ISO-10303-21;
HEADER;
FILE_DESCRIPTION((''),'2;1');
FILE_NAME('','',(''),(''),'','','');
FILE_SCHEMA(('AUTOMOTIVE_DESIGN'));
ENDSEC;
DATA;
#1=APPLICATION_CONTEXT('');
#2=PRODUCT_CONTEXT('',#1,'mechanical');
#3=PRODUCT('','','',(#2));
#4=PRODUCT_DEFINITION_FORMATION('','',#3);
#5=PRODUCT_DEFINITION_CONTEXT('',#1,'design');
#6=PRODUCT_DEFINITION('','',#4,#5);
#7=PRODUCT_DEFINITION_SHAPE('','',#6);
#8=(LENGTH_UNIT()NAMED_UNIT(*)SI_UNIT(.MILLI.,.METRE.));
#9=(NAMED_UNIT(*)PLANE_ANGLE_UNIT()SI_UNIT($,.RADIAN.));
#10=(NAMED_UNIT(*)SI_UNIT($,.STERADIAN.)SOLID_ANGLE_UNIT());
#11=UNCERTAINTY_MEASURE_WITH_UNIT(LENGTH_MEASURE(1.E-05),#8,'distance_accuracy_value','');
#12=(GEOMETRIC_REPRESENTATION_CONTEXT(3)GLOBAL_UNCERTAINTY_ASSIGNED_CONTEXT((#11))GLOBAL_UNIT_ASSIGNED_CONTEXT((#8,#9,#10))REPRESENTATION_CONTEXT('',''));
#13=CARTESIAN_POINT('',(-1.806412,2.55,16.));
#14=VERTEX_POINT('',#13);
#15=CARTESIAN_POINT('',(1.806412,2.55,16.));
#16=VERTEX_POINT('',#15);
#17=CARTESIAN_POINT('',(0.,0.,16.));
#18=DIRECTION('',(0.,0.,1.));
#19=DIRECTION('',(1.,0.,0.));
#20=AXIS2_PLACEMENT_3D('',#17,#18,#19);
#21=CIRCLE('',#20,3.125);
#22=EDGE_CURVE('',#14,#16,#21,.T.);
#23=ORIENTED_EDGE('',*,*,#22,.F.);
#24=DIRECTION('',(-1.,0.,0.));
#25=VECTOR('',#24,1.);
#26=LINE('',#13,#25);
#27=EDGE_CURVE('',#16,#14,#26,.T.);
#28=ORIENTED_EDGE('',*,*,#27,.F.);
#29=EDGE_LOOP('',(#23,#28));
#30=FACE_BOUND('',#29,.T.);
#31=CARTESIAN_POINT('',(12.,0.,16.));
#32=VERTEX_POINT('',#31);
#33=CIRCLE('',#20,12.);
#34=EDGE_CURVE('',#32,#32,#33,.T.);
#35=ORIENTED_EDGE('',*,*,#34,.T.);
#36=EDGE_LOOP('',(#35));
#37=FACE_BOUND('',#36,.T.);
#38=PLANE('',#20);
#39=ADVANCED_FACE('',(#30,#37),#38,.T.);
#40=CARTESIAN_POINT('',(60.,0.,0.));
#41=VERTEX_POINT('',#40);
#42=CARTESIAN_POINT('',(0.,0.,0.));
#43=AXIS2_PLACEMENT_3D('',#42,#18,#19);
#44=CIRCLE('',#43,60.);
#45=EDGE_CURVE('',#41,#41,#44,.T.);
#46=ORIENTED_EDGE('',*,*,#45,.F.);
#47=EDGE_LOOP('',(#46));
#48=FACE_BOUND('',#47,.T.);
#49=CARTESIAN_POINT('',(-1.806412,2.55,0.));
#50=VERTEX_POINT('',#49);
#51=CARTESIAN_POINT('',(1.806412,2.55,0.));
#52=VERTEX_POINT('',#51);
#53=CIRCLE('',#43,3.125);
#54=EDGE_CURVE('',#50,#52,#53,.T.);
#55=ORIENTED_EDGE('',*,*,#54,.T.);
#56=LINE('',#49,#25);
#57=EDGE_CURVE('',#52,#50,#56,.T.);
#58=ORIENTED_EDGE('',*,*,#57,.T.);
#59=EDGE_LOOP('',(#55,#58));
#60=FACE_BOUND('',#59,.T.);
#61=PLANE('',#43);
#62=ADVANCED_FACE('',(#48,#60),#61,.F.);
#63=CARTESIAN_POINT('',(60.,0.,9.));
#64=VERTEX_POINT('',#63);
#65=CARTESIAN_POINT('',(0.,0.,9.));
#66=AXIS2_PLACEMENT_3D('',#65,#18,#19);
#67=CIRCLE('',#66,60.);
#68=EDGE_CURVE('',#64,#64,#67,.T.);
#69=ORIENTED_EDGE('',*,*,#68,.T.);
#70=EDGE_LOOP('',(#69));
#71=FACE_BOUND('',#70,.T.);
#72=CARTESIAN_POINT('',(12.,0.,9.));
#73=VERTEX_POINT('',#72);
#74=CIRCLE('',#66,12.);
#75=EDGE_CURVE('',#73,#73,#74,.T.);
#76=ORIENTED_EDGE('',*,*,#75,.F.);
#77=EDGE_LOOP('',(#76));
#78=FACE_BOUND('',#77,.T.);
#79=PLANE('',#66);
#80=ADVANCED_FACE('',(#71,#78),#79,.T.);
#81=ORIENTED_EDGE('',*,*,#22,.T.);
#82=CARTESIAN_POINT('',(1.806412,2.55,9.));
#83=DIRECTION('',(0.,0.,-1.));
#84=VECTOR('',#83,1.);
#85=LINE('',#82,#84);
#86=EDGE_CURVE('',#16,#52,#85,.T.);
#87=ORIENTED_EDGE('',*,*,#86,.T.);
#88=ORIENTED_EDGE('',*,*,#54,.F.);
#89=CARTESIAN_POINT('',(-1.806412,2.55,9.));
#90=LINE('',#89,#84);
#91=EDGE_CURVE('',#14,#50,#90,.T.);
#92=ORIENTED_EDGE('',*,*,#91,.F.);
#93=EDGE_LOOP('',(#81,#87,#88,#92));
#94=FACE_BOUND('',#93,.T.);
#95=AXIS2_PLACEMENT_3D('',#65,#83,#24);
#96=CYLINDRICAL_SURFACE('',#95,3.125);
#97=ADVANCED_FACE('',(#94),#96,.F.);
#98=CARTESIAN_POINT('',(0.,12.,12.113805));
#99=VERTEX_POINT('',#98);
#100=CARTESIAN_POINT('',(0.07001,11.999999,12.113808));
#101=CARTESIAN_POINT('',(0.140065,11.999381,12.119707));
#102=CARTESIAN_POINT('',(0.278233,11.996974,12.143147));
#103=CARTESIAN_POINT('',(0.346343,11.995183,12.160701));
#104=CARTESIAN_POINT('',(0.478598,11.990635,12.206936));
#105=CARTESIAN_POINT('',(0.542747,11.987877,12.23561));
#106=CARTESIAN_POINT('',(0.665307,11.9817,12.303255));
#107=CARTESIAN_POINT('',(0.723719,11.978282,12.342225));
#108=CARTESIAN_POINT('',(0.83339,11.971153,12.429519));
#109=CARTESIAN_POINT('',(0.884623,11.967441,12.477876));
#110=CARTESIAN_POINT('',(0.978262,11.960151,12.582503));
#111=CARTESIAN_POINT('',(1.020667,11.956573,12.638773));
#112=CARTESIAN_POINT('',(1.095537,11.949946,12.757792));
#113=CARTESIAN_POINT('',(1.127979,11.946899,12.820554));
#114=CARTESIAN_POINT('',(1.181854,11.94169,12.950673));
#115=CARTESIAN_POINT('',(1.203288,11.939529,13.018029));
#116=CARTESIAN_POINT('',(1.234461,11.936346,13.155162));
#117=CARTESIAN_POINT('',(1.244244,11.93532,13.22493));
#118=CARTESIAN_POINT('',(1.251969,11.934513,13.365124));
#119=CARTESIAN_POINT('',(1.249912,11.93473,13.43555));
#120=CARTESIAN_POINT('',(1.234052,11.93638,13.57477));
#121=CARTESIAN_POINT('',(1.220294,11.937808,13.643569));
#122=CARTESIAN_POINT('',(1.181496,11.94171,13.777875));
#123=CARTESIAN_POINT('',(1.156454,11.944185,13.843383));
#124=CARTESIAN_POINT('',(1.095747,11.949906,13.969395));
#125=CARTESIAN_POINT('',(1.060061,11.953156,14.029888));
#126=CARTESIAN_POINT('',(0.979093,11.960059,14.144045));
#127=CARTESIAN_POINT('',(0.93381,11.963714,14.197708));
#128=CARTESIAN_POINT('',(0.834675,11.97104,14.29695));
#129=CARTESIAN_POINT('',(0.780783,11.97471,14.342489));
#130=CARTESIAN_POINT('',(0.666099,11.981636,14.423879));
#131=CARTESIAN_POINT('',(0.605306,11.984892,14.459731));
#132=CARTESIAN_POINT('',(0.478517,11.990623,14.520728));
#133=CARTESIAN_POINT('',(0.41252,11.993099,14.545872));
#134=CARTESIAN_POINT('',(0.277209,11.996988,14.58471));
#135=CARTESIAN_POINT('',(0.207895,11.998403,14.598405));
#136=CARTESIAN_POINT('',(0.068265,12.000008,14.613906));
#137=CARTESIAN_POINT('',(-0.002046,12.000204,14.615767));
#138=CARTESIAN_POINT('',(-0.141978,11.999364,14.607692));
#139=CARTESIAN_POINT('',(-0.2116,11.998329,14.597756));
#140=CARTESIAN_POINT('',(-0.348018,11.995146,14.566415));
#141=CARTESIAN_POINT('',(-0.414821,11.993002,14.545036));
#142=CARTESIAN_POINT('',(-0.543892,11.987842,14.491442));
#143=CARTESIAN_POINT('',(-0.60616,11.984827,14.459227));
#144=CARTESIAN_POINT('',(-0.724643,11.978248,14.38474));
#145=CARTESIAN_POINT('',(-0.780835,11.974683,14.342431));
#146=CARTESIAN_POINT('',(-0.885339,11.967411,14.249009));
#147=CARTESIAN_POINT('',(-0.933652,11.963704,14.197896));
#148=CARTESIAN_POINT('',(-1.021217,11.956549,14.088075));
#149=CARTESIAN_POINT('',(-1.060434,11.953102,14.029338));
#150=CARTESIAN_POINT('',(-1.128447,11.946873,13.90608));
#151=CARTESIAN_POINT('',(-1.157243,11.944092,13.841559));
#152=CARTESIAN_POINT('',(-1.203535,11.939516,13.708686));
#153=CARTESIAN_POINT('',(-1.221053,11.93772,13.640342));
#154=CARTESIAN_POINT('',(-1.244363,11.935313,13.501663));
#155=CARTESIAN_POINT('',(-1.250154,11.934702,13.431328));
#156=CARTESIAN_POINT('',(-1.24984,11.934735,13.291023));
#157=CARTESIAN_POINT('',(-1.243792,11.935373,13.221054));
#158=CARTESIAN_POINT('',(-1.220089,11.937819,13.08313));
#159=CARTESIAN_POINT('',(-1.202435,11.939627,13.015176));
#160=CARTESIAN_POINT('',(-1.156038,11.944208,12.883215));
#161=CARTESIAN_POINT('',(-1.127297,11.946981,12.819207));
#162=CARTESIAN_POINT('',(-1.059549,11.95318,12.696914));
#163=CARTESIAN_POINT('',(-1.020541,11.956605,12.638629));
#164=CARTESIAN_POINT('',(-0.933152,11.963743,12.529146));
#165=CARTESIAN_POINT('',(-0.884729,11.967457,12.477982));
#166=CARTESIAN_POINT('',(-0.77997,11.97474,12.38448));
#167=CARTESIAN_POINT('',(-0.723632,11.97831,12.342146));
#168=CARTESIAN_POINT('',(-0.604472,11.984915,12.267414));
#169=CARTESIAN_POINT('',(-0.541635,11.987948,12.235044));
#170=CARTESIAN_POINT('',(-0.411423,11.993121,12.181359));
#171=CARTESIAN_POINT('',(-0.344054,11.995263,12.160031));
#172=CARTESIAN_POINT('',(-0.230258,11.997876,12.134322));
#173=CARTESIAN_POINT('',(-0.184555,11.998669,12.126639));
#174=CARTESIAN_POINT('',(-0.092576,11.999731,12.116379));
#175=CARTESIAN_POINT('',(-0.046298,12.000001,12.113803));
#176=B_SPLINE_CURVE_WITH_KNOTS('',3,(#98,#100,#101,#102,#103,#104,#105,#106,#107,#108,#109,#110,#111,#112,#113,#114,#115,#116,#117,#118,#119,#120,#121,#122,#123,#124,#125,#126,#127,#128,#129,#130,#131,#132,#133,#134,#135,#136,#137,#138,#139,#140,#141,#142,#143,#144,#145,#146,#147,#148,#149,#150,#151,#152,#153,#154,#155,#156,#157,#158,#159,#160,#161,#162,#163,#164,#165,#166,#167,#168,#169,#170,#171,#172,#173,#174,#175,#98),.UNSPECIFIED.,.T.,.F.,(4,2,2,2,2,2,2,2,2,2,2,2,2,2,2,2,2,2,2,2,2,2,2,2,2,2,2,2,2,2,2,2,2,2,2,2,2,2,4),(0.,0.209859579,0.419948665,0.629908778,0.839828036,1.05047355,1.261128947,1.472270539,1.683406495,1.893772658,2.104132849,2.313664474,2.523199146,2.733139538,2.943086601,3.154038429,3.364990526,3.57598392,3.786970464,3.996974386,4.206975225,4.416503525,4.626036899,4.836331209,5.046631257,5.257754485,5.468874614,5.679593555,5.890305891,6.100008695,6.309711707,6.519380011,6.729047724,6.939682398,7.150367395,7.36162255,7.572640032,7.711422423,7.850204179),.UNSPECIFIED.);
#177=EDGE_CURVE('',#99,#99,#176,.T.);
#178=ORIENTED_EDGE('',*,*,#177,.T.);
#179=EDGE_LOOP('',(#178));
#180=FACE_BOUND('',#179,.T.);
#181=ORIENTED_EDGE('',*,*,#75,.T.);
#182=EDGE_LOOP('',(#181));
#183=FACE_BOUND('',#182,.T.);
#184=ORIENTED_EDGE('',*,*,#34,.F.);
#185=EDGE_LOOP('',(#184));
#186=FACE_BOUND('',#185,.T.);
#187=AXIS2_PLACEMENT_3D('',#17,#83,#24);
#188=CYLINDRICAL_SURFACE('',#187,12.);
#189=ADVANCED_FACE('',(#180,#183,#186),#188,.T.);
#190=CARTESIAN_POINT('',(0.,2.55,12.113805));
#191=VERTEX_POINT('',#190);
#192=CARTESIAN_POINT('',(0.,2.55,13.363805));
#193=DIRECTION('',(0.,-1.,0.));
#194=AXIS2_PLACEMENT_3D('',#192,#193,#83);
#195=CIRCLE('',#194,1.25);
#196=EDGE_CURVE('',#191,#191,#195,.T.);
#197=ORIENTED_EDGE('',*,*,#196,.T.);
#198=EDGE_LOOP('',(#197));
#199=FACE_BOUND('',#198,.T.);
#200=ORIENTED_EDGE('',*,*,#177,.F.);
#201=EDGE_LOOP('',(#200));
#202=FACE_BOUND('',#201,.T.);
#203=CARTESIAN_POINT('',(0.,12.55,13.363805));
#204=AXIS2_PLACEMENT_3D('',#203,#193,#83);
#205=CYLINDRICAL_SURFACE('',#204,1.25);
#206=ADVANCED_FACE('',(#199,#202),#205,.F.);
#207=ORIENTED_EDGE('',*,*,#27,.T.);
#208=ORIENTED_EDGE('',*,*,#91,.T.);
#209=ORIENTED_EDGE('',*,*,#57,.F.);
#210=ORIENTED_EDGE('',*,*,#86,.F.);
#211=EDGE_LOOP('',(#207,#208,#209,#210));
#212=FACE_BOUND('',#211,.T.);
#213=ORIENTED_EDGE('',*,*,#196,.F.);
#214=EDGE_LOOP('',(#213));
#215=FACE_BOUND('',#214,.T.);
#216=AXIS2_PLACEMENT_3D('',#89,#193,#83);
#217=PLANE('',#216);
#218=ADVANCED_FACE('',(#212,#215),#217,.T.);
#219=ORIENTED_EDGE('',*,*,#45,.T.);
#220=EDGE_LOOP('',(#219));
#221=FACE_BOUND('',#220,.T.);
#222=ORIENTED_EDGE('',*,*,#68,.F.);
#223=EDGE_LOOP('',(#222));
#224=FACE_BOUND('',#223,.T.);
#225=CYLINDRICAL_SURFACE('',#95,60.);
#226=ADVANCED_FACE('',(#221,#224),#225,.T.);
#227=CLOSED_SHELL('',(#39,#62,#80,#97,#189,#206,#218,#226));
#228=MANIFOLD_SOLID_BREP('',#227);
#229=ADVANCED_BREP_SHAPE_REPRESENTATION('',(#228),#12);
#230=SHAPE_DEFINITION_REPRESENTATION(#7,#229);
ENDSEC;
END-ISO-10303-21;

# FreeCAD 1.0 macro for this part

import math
import FreeCAD as App
import Part
import Sketcher

doc = App.newDocument("Part")
params = doc.addObject("Spreadsheet::Sheet", "Params")
for row, (alias, value) in enumerate([
    ("sketch1_diameter", "120 mm"),
    ("pad1_length", "9 mm"),
    ("sketch2_diameter", "24 mm"),
    ("pad2_length", "7 mm"),
    ("sketch3_diameter", "2.5 mm"),
    ("pocket1_length", "10 mm"),
], start=1):
    params.set(f"A{row}", alias)
    params.set(f"B{row}", "=" + value)
    params.setAlias(f"B{row}", alias)

body = doc.addObject("PartDesign::Body", "Body")

sketch1 = body.newObject("Sketcher::SketchObject", "Sketch")
sketch1.AttachmentSupport = (doc.getObject("XY_Plane"), [""])
sketch1.MapMode = "FlatFace"
sketch1.addGeometry([
    Part.Circle(App.Vector(0, 0, 0), App.Vector(0, 0, 1), 60),
    Part.ArcOfCircle(Part.Circle(App.Vector(0, 0, 0), App.Vector(0, 0, 1), 3.1), math.radians(125), math.radians(415)),
    Part.LineSegment(App.Vector(-1.8, 2.5, 0), App.Vector(1.8, 2.5, 0)),
], False)
sketch1.addConstraint([
    Sketcher.Constraint("Coincident", 1, 1, 2, 1),
    Sketcher.Constraint("Coincident", 2, 2, 1, 2),
    Sketcher.Constraint("Horizontal", 2),
    Sketcher.Constraint("Coincident", 0, 3, -1, 1),
    Sketcher.Constraint("Coincident", 1, 3, -1, 1),
    Sketcher.Constraint("Diameter", 0, 120.0),
    Sketcher.Constraint("Radius", 1, 3.125),
    Sketcher.Constraint("DistanceY", -1, 1, 1, 1, 2.55),
])
sketch1.setExpression("Constraints[5]", "Params.sketch1_diameter")
pad1 = body.newObject("PartDesign::Pad", "Pad")
pad1.Profile = sketch1
pad1.setExpression("Length", "Params.pad1_length")

sketch2 = body.newObject("Sketcher::SketchObject", "Sketch001")
sketch2.AttachmentSupport = (doc.getObject("XY_Plane"), [""])
sketch2.MapMode = "FlatFace"
sketch2.AttachmentOffset = App.Placement(App.Vector(0, 0, 9), App.Rotation())
sketch2.addGeometry([
    Part.Circle(App.Vector(0, 0, 0), App.Vector(0, 0, 1), 12),
    Part.ArcOfCircle(Part.Circle(App.Vector(0, 0, 0), App.Vector(0, 0, 1), 3.1), math.radians(125), math.radians(415)),
    Part.LineSegment(App.Vector(-1.8, 2.5, 0), App.Vector(1.8, 2.5, 0)),
], False)
sketch2.addConstraint([
    Sketcher.Constraint("Coincident", 1, 1, 2, 1),
    Sketcher.Constraint("Coincident", 2, 2, 1, 2),
    Sketcher.Constraint("Horizontal", 2),
    Sketcher.Constraint("Coincident", 0, 3, -1, 1),
    Sketcher.Constraint("Coincident", 1, 3, -1, 1),
    Sketcher.Constraint("Diameter", 0, 24.0),
    Sketcher.Constraint("Radius", 1, 3.125),
    Sketcher.Constraint("DistanceY", -1, 1, 1, 1, 2.55),
])
sketch2.setExpression("Constraints[5]", "Params.sketch2_diameter")
pad2 = body.newObject("PartDesign::Pad", "Pad001")
pad2.Profile = sketch2
pad2.setExpression("Length", "Params.pad2_length")

sketch3 = body.newObject("Sketcher::SketchObject", "Sketch002")
sketch3.AttachmentSupport = (doc.getObject("XZ_Plane"), [""])
sketch3.MapMode = "FlatFace"
sketch3.AttachmentOffset = App.Placement(App.Vector(0, 0, -2.55), App.Rotation())
sketch3.addGeometry(Part.Circle(App.Vector(0, 13.4, 0), App.Vector(0, 0, 1), 1.2), False)
sketch3.addConstraint([
    Sketcher.Constraint("PointOnObject", 0, 3, -2),
    Sketcher.Constraint("Diameter", 0, 2.5),
    Sketcher.Constraint("DistanceY", -1, 1, 0, 3, 13.363805),
])
sketch3.setExpression("Constraints[1]", "Params.sketch3_diameter")
pocket1 = body.newObject("PartDesign::Pocket", "Pocket")
pocket1.Profile = sketch3
pocket1.setExpression("Length", "Params.pocket1_length")

doc.recompute()
